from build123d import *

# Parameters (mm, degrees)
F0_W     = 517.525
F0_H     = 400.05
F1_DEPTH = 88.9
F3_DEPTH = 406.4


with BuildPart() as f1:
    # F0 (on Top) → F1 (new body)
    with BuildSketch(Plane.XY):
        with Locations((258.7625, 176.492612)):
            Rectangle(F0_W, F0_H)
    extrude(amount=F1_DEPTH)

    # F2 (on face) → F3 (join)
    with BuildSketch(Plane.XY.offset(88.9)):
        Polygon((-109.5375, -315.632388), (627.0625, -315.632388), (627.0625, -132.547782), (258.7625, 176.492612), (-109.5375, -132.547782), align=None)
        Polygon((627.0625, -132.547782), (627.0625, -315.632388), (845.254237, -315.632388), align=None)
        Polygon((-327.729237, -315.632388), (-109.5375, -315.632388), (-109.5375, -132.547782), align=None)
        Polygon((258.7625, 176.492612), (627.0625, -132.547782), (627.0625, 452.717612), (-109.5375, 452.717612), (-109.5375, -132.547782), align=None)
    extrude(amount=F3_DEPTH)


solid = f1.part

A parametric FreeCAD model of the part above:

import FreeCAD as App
import Part
import Sketcher
from FreeCAD import Vector
Q = App.Units.Quantity


def add_polygon(sketch, points):
    """Adds a closed chain of lines whose ends are joined by coincident constraints."""
    first, n = sketch.GeometryCount, len(points)
    for a, b in zip(points, points[1:] + points[:1]):
        sketch.addGeometry(Part.LineSegment(App.Vector(*a, 0), App.Vector(*b, 0)), False)
    for i in range(n):
        sketch.addConstraint(Sketcher.Constraint("Coincident", first + i, 2, first + (i + 1) % n, 1))

doc = App.newDocument("Part")
params = doc.addObject("Spreadsheet::Sheet", "Params")
for row, (alias, value) in enumerate([
    ("sketch1_height", "15.75 in"),
    ("sketch1_width", "20.375 in"),
    ("pad1_length", "3.5 in"),
    ("sketch2_width", "29 in"),
    ("pad2_length", "16 in"),
], start=1):
    params.set(f"A{row}", alias)
    params.set(f"B{row}", "=" + value)
    params.setAlias(f"B{row}", alias)

body = doc.addObject("PartDesign::Body", "Body")

# Sketch on XY plane
sketch1 = body.newObject("Sketcher::SketchObject", "Sketch")
sketch1.AttachmentSupport = (doc.getObject("XY_Plane"), [""])
sketch1.MapMode = "FlatFace"
add_polygon(sketch1, [(0, 377), (0, -24), (518, -24), (518, 377)])  # lines 0-3
sketch1.addConstraint([
    Sketcher.Constraint("Vertical", 0),
    Sketcher.Constraint("Horizontal", 1),
    Sketcher.Constraint("Vertical", 2),
    Sketcher.Constraint("Horizontal", 3),
    Sketcher.Constraint("PointOnObject", 0, 2, -2),
    Sketcher.Constraint("DistanceY", 0, 2, 0, 1, Q("15.75 in")),
    Sketcher.Constraint("DistanceX", 1, 1, 1, 2, Q("20.375 in")),
    Sketcher.Constraint("DistanceY", 0, 2, -1, 1, Q("23.532388 mm")),
])
sketch1.setExpression("Constraints[9]", "Params.sketch1_height")
sketch1.setExpression("Constraints[10]", "Params.sketch1_width")
pad1 = body.newObject("PartDesign::Pad", "Pad")
pad1.Profile = sketch1
pad1.setExpression("Length", "Params.pad1_length")

# Sketch on XY plane
sketch2 = body.newObject("Sketcher::SketchObject", "Sketch001")
sketch2.AttachmentSupport = (doc.getObject("XY_Plane"), [""])
sketch2.MapMode = "FlatFace"
sketch2.AttachmentOffset = App.Placement(Vector(0, 0, 3.5 * 25.4), App.Rotation())
add_polygon(sketch2, [(845, -316), (627, -133), (627, 453), (-110, 453), (-110, -133), (-328, -316)])  # lines 0-5
sketch2.addConstraint([
    Sketcher.Constraint("Vertical", 1),
    Sketcher.Constraint("Horizontal", 2),
    Sketcher.Constraint("Vertical", 3),
    Sketcher.Constraint("Horizontal", 5),
    Sketcher.Constraint("Horizontal", 0, 2, 3, 2),
    Sketcher.Constraint("Equal", 0, 4),
    Sketcher.Constraint("DistanceX", 2, 2, 2, 1, Q("29 in")),
    Sketcher.Constraint("Angle", 0, Q("140 deg")),
    Sketcher.Constraint("DistanceY", 4, 2, 2, 2, Q("30.25 in")),
    Sketcher.Constraint("DistanceX", -1, 1, 0, 2, Q("24.6875 in")),
    Sketcher.Constraint("DistanceX", 5, 1, 5, 2, Q("1172.983474 mm")),
    Sketcher.Constraint("DistanceY", -1, 1, 1, 2, Q("452.717612 mm")),
])
sketch2.setExpression("Constraints[12]", "Params.sketch2_width")
pad2 = body.newObject("PartDesign::Pad", "Pad001")
pad2.Profile = sketch2
pad2.setExpression("Length", "Params.pad2_length")

doc.recompute()
